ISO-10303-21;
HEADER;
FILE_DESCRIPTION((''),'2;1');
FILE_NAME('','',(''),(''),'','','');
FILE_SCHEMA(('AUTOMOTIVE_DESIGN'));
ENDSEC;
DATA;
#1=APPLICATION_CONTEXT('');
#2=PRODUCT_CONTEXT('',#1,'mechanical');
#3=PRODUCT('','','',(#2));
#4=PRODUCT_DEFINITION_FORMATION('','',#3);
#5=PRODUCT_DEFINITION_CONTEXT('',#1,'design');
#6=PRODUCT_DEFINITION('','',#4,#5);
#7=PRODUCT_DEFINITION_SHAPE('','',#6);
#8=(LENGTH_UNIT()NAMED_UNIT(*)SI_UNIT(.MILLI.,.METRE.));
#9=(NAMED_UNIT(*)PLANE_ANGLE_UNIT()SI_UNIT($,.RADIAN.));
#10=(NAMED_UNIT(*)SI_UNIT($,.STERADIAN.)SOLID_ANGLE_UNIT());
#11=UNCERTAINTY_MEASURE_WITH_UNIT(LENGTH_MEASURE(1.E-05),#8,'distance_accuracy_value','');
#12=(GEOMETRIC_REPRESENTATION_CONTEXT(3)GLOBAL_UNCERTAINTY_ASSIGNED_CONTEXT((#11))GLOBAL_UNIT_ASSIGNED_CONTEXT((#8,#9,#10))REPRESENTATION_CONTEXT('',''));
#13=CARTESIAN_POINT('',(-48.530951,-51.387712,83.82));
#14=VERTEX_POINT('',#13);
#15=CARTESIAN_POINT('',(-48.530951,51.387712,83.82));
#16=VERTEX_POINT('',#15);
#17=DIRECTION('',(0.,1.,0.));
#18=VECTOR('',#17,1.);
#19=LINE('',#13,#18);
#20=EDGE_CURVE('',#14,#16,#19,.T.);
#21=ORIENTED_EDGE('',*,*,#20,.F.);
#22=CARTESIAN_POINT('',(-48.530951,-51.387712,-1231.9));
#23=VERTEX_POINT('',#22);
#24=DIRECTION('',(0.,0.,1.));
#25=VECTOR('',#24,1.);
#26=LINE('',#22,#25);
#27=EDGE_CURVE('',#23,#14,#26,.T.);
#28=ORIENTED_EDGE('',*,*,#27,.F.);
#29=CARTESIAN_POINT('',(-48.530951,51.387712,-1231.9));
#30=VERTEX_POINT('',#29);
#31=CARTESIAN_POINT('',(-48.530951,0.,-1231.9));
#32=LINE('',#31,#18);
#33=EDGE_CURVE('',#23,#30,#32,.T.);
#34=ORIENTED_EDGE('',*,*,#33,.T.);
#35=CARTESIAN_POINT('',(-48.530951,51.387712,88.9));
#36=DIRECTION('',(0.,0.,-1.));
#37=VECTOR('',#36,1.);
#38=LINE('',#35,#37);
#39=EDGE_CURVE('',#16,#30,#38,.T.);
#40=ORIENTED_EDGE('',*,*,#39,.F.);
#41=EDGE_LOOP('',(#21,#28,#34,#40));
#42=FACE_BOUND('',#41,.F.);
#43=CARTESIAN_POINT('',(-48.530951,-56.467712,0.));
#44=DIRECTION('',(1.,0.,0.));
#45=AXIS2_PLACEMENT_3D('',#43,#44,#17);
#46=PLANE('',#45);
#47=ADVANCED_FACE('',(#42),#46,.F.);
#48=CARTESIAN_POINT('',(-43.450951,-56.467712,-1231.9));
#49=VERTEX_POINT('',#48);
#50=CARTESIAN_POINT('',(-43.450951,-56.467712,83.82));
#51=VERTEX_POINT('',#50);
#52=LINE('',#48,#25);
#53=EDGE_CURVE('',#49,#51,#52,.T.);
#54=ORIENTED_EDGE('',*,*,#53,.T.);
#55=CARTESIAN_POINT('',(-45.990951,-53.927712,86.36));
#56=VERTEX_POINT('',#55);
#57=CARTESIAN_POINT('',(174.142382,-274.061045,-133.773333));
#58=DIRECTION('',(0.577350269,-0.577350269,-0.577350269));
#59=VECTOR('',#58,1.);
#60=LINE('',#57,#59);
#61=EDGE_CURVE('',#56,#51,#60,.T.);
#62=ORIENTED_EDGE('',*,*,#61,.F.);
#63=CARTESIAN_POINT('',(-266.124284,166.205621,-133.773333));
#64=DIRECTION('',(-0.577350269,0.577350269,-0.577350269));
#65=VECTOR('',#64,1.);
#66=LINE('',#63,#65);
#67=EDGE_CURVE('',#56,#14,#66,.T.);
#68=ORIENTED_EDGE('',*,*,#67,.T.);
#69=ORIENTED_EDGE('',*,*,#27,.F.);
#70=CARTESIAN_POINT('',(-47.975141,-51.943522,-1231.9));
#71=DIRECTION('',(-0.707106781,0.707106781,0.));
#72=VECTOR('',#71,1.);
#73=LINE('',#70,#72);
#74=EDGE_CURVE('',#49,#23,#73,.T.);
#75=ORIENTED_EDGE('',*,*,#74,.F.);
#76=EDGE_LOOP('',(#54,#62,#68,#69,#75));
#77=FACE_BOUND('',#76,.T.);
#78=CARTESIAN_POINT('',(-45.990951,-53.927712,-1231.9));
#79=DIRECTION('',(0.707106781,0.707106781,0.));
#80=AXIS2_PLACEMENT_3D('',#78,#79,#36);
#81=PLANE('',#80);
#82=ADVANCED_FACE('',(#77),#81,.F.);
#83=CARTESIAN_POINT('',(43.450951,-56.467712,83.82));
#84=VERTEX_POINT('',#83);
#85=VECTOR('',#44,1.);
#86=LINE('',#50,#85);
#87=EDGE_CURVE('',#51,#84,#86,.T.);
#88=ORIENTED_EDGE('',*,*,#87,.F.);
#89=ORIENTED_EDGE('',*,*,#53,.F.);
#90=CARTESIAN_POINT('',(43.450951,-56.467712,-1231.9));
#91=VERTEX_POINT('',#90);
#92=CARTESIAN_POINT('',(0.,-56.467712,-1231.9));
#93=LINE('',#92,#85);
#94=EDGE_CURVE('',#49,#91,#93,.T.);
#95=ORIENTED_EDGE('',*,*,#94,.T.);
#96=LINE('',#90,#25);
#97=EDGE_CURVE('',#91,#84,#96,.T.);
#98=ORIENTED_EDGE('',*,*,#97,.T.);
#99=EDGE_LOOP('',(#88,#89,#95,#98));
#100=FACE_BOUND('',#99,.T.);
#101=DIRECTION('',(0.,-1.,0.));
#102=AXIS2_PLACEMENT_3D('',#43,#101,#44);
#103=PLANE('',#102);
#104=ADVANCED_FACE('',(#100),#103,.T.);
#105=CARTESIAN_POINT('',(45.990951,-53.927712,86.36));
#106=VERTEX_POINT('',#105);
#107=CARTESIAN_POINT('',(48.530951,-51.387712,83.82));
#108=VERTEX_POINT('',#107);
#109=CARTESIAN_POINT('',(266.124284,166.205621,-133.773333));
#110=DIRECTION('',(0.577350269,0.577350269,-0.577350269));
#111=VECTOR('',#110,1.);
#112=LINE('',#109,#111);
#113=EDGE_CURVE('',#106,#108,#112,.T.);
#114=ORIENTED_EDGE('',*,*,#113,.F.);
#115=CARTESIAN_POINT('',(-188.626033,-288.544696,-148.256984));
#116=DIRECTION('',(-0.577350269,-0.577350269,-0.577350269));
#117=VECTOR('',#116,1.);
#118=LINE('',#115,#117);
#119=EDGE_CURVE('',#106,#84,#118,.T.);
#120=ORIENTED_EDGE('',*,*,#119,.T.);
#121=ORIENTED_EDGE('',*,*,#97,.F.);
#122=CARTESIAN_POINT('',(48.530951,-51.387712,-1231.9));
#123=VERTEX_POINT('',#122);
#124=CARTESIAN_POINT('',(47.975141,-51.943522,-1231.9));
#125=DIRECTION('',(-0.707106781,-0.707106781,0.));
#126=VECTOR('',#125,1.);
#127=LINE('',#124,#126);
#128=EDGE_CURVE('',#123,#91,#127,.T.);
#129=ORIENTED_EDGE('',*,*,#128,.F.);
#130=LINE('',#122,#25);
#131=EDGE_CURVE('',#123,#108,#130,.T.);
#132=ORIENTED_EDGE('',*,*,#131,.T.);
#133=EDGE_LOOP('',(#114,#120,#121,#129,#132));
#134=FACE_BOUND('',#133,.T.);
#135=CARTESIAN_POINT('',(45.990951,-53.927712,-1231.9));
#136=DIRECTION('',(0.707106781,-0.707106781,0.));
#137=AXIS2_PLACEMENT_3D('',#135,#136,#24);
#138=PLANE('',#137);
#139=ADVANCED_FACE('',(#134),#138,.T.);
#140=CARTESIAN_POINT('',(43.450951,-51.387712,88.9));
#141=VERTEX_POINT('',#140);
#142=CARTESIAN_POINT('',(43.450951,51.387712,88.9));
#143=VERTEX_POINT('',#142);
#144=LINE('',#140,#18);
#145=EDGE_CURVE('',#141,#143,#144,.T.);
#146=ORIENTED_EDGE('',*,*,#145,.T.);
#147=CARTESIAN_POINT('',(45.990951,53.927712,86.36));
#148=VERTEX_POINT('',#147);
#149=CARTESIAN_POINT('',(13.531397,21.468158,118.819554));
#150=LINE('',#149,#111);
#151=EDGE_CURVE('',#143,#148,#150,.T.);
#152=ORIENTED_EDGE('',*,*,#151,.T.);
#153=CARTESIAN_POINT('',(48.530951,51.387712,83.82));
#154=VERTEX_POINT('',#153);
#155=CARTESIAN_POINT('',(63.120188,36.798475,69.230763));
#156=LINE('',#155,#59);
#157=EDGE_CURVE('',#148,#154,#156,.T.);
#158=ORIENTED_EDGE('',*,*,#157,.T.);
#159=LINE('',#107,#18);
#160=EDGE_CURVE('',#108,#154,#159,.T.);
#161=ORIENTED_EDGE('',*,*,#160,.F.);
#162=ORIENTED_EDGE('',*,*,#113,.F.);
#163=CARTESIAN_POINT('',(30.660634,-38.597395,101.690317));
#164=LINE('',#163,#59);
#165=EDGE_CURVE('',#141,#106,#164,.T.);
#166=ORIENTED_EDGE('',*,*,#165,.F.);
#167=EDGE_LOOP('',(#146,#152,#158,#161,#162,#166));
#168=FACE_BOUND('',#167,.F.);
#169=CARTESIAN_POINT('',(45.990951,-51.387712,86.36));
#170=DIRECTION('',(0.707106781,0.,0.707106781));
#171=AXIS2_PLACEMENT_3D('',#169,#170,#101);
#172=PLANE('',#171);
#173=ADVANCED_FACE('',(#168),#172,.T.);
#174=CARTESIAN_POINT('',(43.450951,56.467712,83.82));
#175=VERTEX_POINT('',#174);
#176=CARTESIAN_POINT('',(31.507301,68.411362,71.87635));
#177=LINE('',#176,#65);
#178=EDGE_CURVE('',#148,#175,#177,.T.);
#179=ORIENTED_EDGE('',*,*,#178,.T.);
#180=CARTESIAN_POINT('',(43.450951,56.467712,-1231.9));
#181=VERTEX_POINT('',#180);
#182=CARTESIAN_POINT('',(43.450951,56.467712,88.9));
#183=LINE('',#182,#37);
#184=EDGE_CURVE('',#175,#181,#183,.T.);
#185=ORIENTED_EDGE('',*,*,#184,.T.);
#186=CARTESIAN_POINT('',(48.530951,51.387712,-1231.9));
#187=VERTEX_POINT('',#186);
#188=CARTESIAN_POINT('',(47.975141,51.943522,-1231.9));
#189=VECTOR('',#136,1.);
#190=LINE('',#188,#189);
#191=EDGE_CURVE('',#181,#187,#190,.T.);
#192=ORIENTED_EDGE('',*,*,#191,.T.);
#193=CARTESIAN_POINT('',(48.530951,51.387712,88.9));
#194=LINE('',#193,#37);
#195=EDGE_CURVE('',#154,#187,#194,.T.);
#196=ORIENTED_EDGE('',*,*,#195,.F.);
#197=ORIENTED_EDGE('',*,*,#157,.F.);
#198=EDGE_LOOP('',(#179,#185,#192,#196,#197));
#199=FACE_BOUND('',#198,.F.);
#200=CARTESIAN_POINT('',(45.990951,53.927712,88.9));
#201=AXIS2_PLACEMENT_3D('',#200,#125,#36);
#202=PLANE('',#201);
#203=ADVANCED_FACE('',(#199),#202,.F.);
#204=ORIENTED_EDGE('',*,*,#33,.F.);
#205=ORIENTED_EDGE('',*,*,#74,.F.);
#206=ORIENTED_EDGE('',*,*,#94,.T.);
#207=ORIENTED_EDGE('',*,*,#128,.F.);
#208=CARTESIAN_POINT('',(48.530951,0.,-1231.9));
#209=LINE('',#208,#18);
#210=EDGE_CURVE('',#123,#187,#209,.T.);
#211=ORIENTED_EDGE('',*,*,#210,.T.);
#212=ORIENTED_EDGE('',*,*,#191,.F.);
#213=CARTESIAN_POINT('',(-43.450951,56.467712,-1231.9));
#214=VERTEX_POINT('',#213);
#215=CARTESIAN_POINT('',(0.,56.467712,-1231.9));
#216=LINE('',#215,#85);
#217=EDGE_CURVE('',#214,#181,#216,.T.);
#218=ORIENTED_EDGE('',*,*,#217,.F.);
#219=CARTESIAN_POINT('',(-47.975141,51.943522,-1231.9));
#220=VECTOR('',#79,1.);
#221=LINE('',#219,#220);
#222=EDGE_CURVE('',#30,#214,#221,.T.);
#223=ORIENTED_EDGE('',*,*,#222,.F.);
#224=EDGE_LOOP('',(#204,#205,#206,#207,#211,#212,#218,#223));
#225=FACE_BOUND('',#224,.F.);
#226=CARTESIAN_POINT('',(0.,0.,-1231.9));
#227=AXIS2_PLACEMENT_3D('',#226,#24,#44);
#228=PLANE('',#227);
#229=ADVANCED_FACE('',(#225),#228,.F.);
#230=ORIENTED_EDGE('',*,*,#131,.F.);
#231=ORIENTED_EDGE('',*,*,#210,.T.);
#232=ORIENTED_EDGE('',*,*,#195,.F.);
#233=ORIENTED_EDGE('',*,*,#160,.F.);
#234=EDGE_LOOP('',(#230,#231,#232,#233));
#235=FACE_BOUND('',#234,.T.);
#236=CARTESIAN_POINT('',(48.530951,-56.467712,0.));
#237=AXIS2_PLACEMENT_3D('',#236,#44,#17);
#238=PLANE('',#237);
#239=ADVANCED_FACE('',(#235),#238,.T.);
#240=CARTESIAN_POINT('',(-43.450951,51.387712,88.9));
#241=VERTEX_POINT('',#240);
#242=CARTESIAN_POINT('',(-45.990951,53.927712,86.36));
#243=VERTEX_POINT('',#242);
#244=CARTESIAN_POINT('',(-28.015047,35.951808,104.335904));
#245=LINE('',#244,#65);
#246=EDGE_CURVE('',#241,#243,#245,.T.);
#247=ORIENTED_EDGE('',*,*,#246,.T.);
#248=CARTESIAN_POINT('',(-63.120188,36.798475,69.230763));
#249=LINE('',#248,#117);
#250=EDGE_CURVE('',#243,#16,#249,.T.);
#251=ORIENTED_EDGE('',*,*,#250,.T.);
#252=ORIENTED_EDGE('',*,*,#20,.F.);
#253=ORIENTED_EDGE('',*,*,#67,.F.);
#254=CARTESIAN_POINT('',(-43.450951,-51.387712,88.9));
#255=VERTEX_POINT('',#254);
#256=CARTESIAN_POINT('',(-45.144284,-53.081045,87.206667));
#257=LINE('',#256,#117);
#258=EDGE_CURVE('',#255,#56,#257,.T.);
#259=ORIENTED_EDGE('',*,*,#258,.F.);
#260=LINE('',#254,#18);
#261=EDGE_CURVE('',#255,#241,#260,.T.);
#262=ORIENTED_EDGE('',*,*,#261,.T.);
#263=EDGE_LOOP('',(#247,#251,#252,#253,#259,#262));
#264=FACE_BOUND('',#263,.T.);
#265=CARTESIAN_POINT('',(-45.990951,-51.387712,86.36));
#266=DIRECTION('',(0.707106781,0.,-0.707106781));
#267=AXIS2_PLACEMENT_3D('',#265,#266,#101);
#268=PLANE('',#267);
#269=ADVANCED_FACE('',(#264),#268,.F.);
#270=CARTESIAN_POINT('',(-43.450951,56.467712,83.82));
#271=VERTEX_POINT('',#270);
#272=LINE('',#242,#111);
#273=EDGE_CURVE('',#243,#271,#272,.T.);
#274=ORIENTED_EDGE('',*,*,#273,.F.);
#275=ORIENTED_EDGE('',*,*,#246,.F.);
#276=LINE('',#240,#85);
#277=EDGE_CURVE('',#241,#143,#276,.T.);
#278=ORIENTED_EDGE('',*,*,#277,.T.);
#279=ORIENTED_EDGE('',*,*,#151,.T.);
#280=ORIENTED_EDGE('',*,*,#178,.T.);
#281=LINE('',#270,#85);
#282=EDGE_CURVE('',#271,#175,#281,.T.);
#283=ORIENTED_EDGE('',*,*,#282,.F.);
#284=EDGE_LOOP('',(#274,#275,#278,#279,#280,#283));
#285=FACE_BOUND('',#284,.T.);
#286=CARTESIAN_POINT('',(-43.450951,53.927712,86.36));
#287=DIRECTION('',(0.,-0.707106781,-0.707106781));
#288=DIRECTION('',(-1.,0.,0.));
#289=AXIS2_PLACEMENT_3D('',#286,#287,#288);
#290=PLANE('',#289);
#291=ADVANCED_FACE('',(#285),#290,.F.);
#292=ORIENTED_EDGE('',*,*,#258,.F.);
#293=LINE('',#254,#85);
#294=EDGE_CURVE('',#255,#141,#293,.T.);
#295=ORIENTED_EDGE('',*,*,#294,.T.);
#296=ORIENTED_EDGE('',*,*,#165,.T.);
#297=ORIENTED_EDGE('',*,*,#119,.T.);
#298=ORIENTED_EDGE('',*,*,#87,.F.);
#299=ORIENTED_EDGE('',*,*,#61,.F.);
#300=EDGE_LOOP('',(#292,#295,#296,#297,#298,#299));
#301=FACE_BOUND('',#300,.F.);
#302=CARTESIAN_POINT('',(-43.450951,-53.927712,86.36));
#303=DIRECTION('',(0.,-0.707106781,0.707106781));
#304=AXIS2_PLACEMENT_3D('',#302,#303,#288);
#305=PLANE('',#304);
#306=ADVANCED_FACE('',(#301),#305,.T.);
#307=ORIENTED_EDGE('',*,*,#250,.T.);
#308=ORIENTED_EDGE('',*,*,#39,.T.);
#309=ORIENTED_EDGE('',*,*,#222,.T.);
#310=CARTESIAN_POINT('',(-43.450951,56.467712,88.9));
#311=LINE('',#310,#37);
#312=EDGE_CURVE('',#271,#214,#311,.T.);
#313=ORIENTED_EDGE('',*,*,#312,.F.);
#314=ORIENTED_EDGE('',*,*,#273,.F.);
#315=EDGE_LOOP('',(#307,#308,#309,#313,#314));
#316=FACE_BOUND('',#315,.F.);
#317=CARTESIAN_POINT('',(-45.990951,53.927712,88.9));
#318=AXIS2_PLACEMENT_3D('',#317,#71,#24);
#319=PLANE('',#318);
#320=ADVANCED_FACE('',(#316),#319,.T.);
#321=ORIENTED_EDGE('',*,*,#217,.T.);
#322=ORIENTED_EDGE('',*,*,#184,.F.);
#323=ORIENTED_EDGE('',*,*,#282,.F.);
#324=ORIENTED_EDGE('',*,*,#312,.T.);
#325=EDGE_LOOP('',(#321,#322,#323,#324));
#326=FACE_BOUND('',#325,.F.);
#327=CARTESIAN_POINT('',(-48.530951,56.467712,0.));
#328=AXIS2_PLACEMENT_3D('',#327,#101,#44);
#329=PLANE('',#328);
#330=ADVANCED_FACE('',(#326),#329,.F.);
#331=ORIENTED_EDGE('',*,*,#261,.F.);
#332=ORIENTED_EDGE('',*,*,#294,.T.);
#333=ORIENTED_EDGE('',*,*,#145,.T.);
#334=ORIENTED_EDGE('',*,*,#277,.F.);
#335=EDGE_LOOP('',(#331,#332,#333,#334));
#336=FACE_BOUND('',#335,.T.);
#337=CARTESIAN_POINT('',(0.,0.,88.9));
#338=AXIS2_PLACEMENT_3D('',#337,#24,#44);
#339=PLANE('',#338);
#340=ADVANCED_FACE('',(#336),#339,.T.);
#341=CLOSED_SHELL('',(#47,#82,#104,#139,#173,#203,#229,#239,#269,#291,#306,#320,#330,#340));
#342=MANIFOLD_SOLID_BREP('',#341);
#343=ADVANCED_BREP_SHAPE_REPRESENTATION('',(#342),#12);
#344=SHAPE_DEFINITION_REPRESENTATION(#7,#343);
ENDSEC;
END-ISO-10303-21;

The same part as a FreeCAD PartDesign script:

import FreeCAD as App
import Part
import Sketcher

V = App.Vector
Q = App.Units.Quantity


def edges_at(feature, points):
    """Names of the edges that pass closest to the given points."""
    edges = feature.Shape.Edges
    near = lambda p: min(range(len(edges)), key=lambda i: edges[i].distToShape(Part.Vertex(*p))[0])
    return sorted({f"Edge{near(p) + 1}" for p in points})

doc = App.newDocument("Part")
body = doc.addObject("PartDesign::Body", "Body")

sketch1 = doc.addObject("Sketcher::SketchObject", "Sketch")
body.addObject(sketch1)
sketch1.AttachmentSupport = (doc.XY_Plane, [""])
sketch1.MapMode = "FlatFace"
sketch1.addGeometry(Part.LineSegment(V(-48.530951, 56.467712, 0), V(-48.530951, -56.467712, 0)), False)
sketch1.addGeometry(Part.LineSegment(V(-48.530951, -56.467712, 0), V(48.530951, -56.467712, 0)), False)
sketch1.addGeometry(Part.LineSegment(V(48.530951, -56.467712, 0), V(48.530951, 56.467712, 0)), False)
sketch1.addGeometry(Part.LineSegment(V(48.530951, 56.467712, 0), V(-48.530951, 56.467712, 0)), False)
sketch1.addConstraint(Sketcher.Constraint("Coincident", 0, 2, 1, 1))
sketch1.addConstraint(Sketcher.Constraint("Coincident", 1, 2, 2, 1))
sketch1.addConstraint(Sketcher.Constraint("Coincident", 2, 2, 3, 1))
sketch1.addConstraint(Sketcher.Constraint("Coincident", 3, 2, 0, 1))
sketch1.addConstraint(Sketcher.Constraint("Vertical", 0))
sketch1.addConstraint(Sketcher.Constraint("Horizontal", 1))
sketch1.addConstraint(Sketcher.Constraint("Vertical", 2))
sketch1.addConstraint(Sketcher.Constraint("Horizontal", 3))
sketch1.addConstraint(Sketcher.Constraint("Symmetric", 0, 2, 2, 2, -1, 1))
sketch1.addConstraint(Sketcher.Constraint("DistanceX", 1, 1, 1, 2, 97.061902))
sketch1.addConstraint(Sketcher.Constraint("DistanceY", 0, 2, 0, 1, 112.935424))
pad1 = doc.addObject("PartDesign::Pad", "Pad")
body.addObject(pad1)
pad1.Profile = sketch1
pad1.Type = "TwoLengths"
pad1.Length = Q("3.5 in")
pad1.Length2 = Q("48.5 in")
doc.recompute()

chamfer = doc.addObject("PartDesign::Chamfer", "Chamfer")
body.addObject(chamfer)
chamfer.Base = (pad1, edges_at(pad1, [(48.531, -56.468, -571.5)]))
chamfer.Size = Q("0.2 in")
doc.recompute()

chamfer2 = doc.addObject("PartDesign::Chamfer", "Chamfer001")
body.addObject(chamfer2)
chamfer2.Base = (chamfer, edges_at(chamfer, [(-48.531, -56.468, -571.5)]))
chamfer2.Size = Q("0.2 in")
doc.recompute()

chamfer3 = doc.addObject("PartDesign::Chamfer", "Chamfer002")
body.addObject(chamfer3)
chamfer3.Base = (chamfer2, edges_at(chamfer2, [(-48.531, 56.468, -571.5)]))
chamfer3.Size = Q("0.2 in")
doc.recompute()

chamfer4 = doc.addObject("PartDesign::Chamfer", "Chamfer003")
body.addObject(chamfer4)
chamfer4.Base = (chamfer3, edges_at(chamfer3, [(48.531, 56.468, -571.5)]))
chamfer4.Size = Q("0.2 in")
doc.recompute()

chamfer5 = doc.addObject("PartDesign::Chamfer", "Chamfer004")
body.addObject(chamfer5)
chamfer5.Base = (chamfer4, edges_at(chamfer4, [(0, 56.468, 88.9)]))
chamfer5.Size = Q("0.2 in")
doc.recompute()

chamfer6 = doc.addObject("PartDesign::Chamfer", "Chamfer005")
body.addObject(chamfer6)
chamfer6.Base = (chamfer5, edges_at(chamfer5, [(48.531, 0, 88.9)]))
chamfer6.Size = Q("0.2 in")
doc.recompute()

chamfer7 = doc.addObject("PartDesign::Chamfer", "Chamfer006")
body.addObject(chamfer7)
chamfer7.Base = (chamfer6, edges_at(chamfer6, [(0, -56.468, 88.9)]))
chamfer7.Size = Q("0.2 in")
doc.recompute()

chamfer8 = doc.addObject("PartDesign::Chamfer", "Chamfer007")
body.addObject(chamfer8)
chamfer8.Base = (chamfer7, edges_at(chamfer7, [(-48.531, 0, 88.9)]))
chamfer8.Size = Q("0.2 in")

doc.recompute()
